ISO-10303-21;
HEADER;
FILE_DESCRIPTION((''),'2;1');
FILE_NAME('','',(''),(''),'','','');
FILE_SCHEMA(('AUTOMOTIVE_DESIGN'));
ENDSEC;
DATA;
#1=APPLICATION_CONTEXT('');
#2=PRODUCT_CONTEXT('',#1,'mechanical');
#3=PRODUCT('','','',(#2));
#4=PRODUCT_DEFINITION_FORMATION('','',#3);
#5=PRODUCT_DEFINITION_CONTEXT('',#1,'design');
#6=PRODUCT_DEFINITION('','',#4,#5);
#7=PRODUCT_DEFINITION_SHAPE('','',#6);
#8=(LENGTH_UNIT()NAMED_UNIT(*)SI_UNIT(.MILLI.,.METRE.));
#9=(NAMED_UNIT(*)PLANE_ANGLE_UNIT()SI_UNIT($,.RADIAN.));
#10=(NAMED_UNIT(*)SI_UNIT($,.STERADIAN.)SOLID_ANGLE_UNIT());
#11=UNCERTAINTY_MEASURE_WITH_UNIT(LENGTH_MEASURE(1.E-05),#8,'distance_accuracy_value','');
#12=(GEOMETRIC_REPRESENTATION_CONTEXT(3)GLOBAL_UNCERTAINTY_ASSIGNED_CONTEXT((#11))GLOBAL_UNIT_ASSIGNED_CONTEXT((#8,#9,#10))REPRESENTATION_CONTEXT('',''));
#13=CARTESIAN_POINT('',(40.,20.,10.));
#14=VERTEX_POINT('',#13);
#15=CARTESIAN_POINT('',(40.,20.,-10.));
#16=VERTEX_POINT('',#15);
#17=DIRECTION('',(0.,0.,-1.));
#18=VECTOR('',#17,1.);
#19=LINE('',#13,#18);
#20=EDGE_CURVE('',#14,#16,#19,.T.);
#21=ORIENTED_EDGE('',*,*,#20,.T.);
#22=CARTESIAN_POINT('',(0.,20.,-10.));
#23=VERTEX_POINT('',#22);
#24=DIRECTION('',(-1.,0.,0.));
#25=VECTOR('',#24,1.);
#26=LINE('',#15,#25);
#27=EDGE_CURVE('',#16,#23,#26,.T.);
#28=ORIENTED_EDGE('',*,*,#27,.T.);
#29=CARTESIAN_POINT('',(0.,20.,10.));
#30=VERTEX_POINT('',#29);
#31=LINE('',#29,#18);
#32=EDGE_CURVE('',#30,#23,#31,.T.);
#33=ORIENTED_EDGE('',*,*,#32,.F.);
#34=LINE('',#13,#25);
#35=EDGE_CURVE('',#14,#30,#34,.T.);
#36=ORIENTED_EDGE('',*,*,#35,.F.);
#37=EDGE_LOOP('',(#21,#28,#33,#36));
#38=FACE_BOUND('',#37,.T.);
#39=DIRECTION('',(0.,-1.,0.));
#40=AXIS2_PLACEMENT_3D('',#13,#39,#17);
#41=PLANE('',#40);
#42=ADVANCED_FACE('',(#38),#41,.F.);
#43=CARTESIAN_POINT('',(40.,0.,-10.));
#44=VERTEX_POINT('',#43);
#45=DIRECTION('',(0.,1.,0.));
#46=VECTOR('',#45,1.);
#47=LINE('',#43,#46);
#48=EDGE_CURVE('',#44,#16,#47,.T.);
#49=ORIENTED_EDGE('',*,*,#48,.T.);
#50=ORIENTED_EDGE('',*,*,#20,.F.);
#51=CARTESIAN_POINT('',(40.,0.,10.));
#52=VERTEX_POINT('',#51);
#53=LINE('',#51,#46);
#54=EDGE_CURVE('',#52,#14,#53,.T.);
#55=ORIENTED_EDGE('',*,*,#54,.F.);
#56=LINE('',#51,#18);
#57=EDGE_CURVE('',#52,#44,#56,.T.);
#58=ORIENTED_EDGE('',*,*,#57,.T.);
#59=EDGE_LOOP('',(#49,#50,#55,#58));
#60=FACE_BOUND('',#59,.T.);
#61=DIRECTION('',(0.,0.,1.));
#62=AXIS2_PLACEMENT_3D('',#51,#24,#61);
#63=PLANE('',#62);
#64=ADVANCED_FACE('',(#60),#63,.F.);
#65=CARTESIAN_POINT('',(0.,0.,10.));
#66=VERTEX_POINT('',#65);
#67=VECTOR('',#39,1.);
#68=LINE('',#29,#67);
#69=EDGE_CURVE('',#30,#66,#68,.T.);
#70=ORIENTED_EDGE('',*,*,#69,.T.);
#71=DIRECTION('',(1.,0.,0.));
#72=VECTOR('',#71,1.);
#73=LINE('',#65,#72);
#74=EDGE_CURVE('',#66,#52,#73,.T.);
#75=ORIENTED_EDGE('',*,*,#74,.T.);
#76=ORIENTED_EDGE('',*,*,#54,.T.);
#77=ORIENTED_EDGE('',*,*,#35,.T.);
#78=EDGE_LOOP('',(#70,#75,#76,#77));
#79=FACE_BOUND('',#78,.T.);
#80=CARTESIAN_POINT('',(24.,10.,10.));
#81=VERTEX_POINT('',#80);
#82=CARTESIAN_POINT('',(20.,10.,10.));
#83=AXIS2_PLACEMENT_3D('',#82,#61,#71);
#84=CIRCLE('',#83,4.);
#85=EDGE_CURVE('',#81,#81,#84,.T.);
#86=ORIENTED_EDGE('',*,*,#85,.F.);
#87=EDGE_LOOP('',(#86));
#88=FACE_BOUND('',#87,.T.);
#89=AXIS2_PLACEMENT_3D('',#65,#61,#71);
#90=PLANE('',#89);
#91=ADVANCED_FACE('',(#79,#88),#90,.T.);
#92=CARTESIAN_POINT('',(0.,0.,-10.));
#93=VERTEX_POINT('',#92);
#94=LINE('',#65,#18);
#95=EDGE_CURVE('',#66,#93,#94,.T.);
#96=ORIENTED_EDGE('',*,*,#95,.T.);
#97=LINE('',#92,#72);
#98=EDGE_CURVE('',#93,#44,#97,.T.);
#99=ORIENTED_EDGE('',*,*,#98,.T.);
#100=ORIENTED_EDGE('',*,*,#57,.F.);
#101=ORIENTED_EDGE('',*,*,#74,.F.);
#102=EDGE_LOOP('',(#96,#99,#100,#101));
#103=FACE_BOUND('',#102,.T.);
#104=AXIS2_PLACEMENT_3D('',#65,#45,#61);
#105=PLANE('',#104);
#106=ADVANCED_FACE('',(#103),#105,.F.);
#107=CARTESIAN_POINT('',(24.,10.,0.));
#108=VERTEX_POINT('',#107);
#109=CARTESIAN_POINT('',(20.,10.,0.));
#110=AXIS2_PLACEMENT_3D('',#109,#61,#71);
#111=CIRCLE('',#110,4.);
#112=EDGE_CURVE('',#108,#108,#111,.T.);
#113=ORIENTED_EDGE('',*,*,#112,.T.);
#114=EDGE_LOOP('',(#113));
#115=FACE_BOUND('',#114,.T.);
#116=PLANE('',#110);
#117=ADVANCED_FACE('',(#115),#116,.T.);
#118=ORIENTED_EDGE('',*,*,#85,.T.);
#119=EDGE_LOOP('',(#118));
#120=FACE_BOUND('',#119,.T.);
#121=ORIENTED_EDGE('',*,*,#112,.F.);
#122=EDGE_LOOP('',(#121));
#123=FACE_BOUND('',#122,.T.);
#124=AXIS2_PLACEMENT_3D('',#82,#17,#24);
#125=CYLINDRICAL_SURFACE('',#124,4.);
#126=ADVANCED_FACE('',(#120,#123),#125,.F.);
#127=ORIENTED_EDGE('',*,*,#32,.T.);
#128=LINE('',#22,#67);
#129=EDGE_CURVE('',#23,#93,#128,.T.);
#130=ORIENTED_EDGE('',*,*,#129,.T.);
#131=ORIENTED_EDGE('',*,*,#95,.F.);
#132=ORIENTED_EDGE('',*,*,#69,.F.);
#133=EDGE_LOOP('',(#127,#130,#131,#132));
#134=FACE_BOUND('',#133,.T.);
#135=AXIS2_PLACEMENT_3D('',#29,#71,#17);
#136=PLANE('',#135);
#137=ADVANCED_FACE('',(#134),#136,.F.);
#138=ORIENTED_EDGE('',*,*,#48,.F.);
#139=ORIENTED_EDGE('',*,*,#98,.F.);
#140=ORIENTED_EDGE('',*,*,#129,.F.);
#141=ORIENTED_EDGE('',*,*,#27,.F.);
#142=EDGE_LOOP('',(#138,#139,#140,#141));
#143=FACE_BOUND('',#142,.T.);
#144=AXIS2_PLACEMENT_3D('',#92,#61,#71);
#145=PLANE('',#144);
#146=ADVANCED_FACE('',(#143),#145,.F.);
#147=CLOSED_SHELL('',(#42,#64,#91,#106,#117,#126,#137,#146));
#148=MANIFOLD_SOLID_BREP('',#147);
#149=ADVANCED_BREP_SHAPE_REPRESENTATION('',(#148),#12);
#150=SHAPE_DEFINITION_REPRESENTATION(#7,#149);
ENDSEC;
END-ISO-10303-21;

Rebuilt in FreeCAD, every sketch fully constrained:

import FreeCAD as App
import Part
import Sketcher
from FreeCAD import Vector

doc = App.newDocument("Part")
params = doc.addObject("Spreadsheet::Sheet", "Params")
for row, (alias, value) in enumerate([
    ("sketch1_width", "40 mm"),
    ("sketch1_height", "20 mm"),
    ("pad1_length", "20 mm"),
    ("sketch2_diameter", "8 mm"),
], start=1):
    params.set(f"A{row}", alias)
    params.set(f"B{row}", "=" + value)
    params.setAlias(f"B{row}", alias)

body = doc.addObject("PartDesign::Body", "Body")

sketch1 = doc.addObject("Sketcher::SketchObject", "Sketch")
body.addObject(sketch1)
sketch1.AttachmentSupport = (doc.XY_Plane, [""])
sketch1.MapMode = "FlatFace"
sketch1.addGeometry([
    Part.LineSegment(Vector(0, 20, 0), Vector(0, 0, 0)),
    Part.LineSegment(Vector(0, 0, 0), Vector(40, 0, 0)),
    Part.LineSegment(Vector(40, 0, 0), Vector(40, 20, 0)),
    Part.LineSegment(Vector(40, 20, 0), Vector(0, 20, 0)),
], False)
sketch1.addConstraint([
    Sketcher.Constraint("Coincident", 0, 2, 1, 1),
    Sketcher.Constraint("Coincident", 1, 2, 2, 1),
    Sketcher.Constraint("Coincident", 2, 2, 3, 1),
    Sketcher.Constraint("Coincident", 3, 2, 0, 1),
    Sketcher.Constraint("Vertical", 0),
    Sketcher.Constraint("Horizontal", 1),
    Sketcher.Constraint("Vertical", 2),
    Sketcher.Constraint("Horizontal", 3),
    Sketcher.Constraint("Coincident", 0, 2, -1, 1),
    Sketcher.Constraint("DistanceX", 1, 1, 1, 2, 40.0),
    Sketcher.Constraint("DistanceY", 0, 2, 0, 1, 20.0),
])
sketch1.setExpression("Constraints[9]", "Params.sketch1_width")
sketch1.setExpression("Constraints[10]", "Params.sketch1_height")
pad1 = doc.addObject("PartDesign::Pad", "Pad")
body.addObject(pad1)
pad1.Profile = sketch1
pad1.setExpression("Length", "Params.pad1_length")
pad1.Midplane = True

sketch2 = doc.addObject("Sketcher::SketchObject", "Sketch001")
body.addObject(sketch2)
sketch2.AttachmentSupport = (doc.XY_Plane, [""])
sketch2.MapMode = "FlatFace"
sketch2.addGeometry(Part.Circle(Vector(20, 10, 0), Vector(0, 0, 1), 4), False)
sketch2.addConstraint([
    Sketcher.Constraint("Diameter", 0, 8.0),
    Sketcher.Constraint("DistanceX", -1, 1, 0, 3, 20.0),
    Sketcher.Constraint("DistanceY", -1, 1, 0, 3, 10.0),
])
sketch2.setExpression("Constraints[0]", "Params.sketch2_diameter")
pocket1 = doc.addObject("PartDesign::Pocket", "Pocket")
body.addObject(pocket1)
pocket1.Profile = sketch2
pocket1.Type = "ThroughAll"
pocket1.Reversed = True

doc.recompute()
